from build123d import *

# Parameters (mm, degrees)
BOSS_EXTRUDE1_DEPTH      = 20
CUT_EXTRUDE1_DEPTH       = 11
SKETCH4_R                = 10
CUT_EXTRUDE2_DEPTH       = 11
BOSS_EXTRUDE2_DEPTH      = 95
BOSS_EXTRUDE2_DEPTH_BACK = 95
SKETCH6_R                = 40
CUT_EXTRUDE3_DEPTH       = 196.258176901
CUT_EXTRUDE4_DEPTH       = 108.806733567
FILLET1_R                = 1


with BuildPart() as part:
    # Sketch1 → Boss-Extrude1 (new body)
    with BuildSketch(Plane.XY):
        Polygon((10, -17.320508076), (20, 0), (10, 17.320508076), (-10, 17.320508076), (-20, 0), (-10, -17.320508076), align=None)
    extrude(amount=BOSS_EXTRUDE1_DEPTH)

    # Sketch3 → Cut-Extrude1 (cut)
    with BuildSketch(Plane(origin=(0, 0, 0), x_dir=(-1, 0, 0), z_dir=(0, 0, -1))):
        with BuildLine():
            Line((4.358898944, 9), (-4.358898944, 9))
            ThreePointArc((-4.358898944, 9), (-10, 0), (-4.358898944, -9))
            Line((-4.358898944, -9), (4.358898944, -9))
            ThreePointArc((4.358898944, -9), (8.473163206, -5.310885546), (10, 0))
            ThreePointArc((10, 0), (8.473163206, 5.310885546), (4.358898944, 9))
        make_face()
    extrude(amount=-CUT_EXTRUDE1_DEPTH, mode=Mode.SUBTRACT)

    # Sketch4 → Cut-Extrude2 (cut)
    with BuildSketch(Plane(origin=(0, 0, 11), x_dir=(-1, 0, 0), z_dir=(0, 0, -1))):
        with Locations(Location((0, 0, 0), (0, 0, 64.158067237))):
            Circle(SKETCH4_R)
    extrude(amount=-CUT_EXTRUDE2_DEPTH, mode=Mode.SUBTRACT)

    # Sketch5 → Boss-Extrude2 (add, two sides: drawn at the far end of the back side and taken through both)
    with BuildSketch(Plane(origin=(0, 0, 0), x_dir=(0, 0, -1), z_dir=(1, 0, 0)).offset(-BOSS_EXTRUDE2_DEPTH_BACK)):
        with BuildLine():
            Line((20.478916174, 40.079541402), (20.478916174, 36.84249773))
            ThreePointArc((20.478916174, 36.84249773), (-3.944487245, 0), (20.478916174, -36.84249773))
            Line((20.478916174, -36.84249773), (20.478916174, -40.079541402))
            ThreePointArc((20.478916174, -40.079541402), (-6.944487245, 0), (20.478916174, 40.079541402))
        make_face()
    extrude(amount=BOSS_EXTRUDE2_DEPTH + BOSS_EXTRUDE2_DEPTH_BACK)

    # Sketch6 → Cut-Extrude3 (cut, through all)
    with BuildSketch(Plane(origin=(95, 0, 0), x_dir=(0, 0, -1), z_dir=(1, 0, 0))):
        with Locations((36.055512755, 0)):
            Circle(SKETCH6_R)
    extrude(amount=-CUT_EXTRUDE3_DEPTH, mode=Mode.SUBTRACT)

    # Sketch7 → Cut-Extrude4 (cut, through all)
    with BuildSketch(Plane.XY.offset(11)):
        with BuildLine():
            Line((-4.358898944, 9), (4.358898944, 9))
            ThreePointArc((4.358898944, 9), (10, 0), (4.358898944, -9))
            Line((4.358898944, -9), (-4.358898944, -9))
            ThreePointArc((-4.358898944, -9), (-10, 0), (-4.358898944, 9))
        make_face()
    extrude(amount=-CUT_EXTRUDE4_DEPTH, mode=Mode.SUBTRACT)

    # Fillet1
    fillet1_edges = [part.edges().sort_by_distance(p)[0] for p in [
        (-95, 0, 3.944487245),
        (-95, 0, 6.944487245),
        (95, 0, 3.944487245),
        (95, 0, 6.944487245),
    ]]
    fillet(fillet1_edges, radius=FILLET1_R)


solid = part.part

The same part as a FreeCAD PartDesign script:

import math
import FreeCAD as App
import Part
import Sketcher
Q = App.Units.Quantity


def edges_at(feature, points):
    """Names of the edges that pass closest to the given points."""
    edges = feature.Shape.Edges
    near = lambda p: min(range(len(edges)), key=lambda i: edges[i].distToShape(Part.Vertex(*p))[0])
    return sorted({f"Edge{near(p) + 1}" for p in points})

doc = App.newDocument("Part")
body = doc.addObject("PartDesign::Body", "Body")

# Sketch on XY plane
sketch1 = body.newObject("Sketcher::SketchObject", "Sketch")
sketch1.AttachmentSupport = (doc.getObject("XY_Plane"), [""])
sketch1.MapMode = "FlatFace"
sketch1.addGeometry([
    Part.LineSegment(App.Vector(10, -17, 0), App.Vector(20, 0, 0)),  # 0
    Part.LineSegment(App.Vector(20, 0, 0), App.Vector(10, 17, 0)),  # 1
    Part.LineSegment(App.Vector(10, 17, 0), App.Vector(-10, 17, 0)),  # 2
    Part.LineSegment(App.Vector(-10, 17, 0), App.Vector(-20, 0, 0)),  # 3
    Part.LineSegment(App.Vector(-20, 0, 0), App.Vector(-10, -17, 0)),  # 4
    Part.LineSegment(App.Vector(-10, -17, 0), App.Vector(10, -17, 0)),  # 5
], False)
sketch1.addConstraint([
    Sketcher.Constraint("Coincident", 0, 2, 1, 1),
    Sketcher.Constraint("Coincident", 1, 2, 2, 1),
    Sketcher.Constraint("Coincident", 2, 2, 3, 1),
    Sketcher.Constraint("Coincident", 3, 2, 4, 1),
    Sketcher.Constraint("Coincident", 4, 2, 5, 1),
    Sketcher.Constraint("Coincident", 5, 2, 0, 1),
    Sketcher.Constraint("Horizontal", 2),
    Sketcher.Constraint("Horizontal", 5),
    Sketcher.Constraint("Symmetric", 0, 2, 3, 2, -1, 1),
    Sketcher.Constraint("Symmetric", 1, 2, 4, 2, -1, 1),
    Sketcher.Constraint("PointOnObject", 0, 2, -1),
    Sketcher.Constraint("Parallel", 0, 3),
    Sketcher.Constraint("Vertical", 2, 2, 4, 2),
    Sketcher.Constraint("DistanceX", 2, 2, 2, 1, Q("20 mm")),
    Sketcher.Constraint("Angle", 0, Q("60 deg")),
    Sketcher.Constraint("Distance", 0, Q("20 mm")),
])
pad1 = body.newObject("PartDesign::Pad", "Pad")
pad1.Profile = sketch1
pad1.Length = 20

# Sketch on XY plane
sketch2 = body.newObject("Sketcher::SketchObject", "Sketch001")
sketch2.AttachmentSupport = (doc.getObject("XY_Plane"), [""])
sketch2.MapMode = "FlatFace"
sketch2.addGeometry([
    Part.LineSegment(App.Vector(-4, 9, 0), App.Vector(4, 9, 0)),  # 0
    Part.ArcOfCircle(Part.Circle(App.Vector(0, 0, 0), App.Vector(0, 0, 1), 10), math.radians(-64), math.radians(64)),  # 1
    Part.LineSegment(App.Vector(4, -9, 0), App.Vector(-4, -9, 0)),  # 2
    Part.ArcOfCircle(Part.Circle(App.Vector(0, 0, 0), App.Vector(0, 0, 1), 10), math.radians(180), math.radians(244)),  # 3
    Part.ArcOfCircle(Part.Circle(App.Vector(0, 0, 0), App.Vector(0, 0, 1), 10), math.radians(116), math.radians(180)),  # 4
], False)
sketch2.addConstraint([
    Sketcher.Constraint("Coincident", 0, 2, 1, 2),
    Sketcher.Constraint("Coincident", 1, 1, 2, 1),
    Sketcher.Constraint("Coincident", 2, 2, 3, 2),
    Sketcher.Constraint("Tangent", 3, 1, 4, 2),
    Sketcher.Constraint("Coincident", 4, 1, 0, 1),
    Sketcher.Constraint("Horizontal", 0),
    Sketcher.Constraint("Horizontal", 2),
    Sketcher.Constraint("Coincident", 1, 3, -1, 1),
    Sketcher.Constraint("Coincident", 3, 3, -1, 1),
    Sketcher.Constraint("Equal", 1, 3),
    Sketcher.Constraint("Equal", 3, 4),
    Sketcher.Constraint("PointOnObject", 3, 1, -1),
    Sketcher.Constraint("Vertical", 0, 2, 1, 1),
    Sketcher.Constraint("Radius", 1, Q("10 mm")),
    Sketcher.Constraint("DistanceY", -1, 1, 0, 2, Q("9 mm")),
])
pocket1 = body.newObject("PartDesign::Pocket", "Pocket")
pocket1.Profile = sketch2
pocket1.Length = 11
pocket1.Reversed = True

# Sketch on XY plane
sketch3 = body.newObject("Sketcher::SketchObject", "Sketch002")
sketch3.AttachmentSupport = (doc.getObject("XY_Plane"), [""])
sketch3.MapMode = "FlatFace"
sketch3.AttachmentOffset = App.Placement(App.Vector(0, 0, 11), App.Rotation())
sketch3.addGeometry(Part.Circle(App.Vector(0, 0, 0), App.Vector(0, 0, 1), 10), False)
sketch3.addConstraint([
    Sketcher.Constraint("Coincident", 0, 3, -1, 1),
    Sketcher.Constraint("Diameter", 0, Q("20 mm")),
])
pocket2 = body.newObject("PartDesign::Pocket", "Pocket001")
pocket2.Profile = sketch3
pocket2.Length = 11
pocket2.Reversed = True

# Sketch on YZ plane
sketch4 = body.newObject("Sketcher::SketchObject", "Sketch003")
sketch4.AttachmentSupport = (doc.getObject("YZ_Plane"), [""])
sketch4.MapMode = "FlatFace"
sketch4.addGeometry([
    Part.LineSegment(App.Vector(36.8, -20.5, 0), App.Vector(40.1, -20.5, 0)),
    Part.ArcOfCircle(Part.Circle(App.Vector(0, -36.1, 0), App.Vector(0, 0, 1), 43), math.radians(21), math.radians(159)),
    Part.LineSegment(App.Vector(-40.1, -20.5, 0), App.Vector(-36.8, -20.5, 0)),
    Part.ArcOfCircle(Part.Circle(App.Vector(0, -36.1, 0), App.Vector(0, 0, 1), 40), math.radians(23), math.radians(157)),
], False)
sketch4.addConstraint([
    Sketcher.Constraint("Coincident", 0, 2, 1, 1),
    Sketcher.Constraint("Coincident", 1, 2, 2, 1),
    Sketcher.Constraint("Coincident", 2, 2, 3, 2),
    Sketcher.Constraint("Coincident", 3, 1, 0, 1),
    Sketcher.Constraint("Horizontal", 0),
    Sketcher.Constraint("Horizontal", 2),
    Sketcher.Constraint("Coincident", 3, 3, 1, 3),
    Sketcher.Constraint("Symmetric", 0, 2, 1, 2, -2),
    Sketcher.Constraint("Radius", 1, Q("43 mm")),
    Sketcher.Constraint("Radius", 3, Q("40 mm")),
    Sketcher.Constraint("DistanceX", 0, 1, 0, 2, Q("3.237044 mm")),
    Sketcher.Constraint("DistanceY", 1, 3, -1, 1, Q("36.055513 mm")),
])
pad2 = body.newObject("PartDesign::Pad", "Pad001")
pad2.Profile = sketch4
pad2.Type = "TwoLengths"
pad2.Length = 95
pad2.Length2 = 95

# Sketch on YZ plane
sketch5 = body.newObject("Sketcher::SketchObject", "Sketch004")
sketch5.AttachmentSupport = (doc.getObject("YZ_Plane"), [""])
sketch5.MapMode = "FlatFace"
sketch5.AttachmentOffset = App.Placement(App.Vector(0, 0, 95), App.Rotation())
sketch5.addGeometry(Part.Circle(App.Vector(0, -36, 0), App.Vector(0, 0, 1), 40), False)
sketch5.addConstraint([
    Sketcher.Constraint("PointOnObject", 0, 3, -2),
    Sketcher.Constraint("Diameter", 0, Q("80 mm")),
    Sketcher.Constraint("DistanceY", 0, 3, -1, 1, Q("36.055513 mm")),
])
pocket3 = body.newObject("PartDesign::Pocket", "Pocket002")
pocket3.Profile = sketch5
pocket3.Type = "ThroughAll"

# Sketch on XY plane
sketch6 = body.newObject("Sketcher::SketchObject", "Sketch005")
sketch6.AttachmentSupport = (doc.getObject("XY_Plane"), [""])
sketch6.MapMode = "FlatFace"
sketch6.AttachmentOffset = App.Placement(App.Vector(0, 0, 11), App.Rotation())
sketch6.addGeometry([
    Part.LineSegment(App.Vector(4, 9, 0), App.Vector(-4, 9, 0)),
    Part.ArcOfCircle(Part.Circle(App.Vector(0, 0, 0), App.Vector(0, 0, 1), 10), math.radians(116), math.radians(244)),
    Part.LineSegment(App.Vector(-4, -9, 0), App.Vector(4, -9, 0)),
    Part.ArcOfCircle(Part.Circle(App.Vector(0, 0, 0), App.Vector(0, 0, 1), 10), math.radians(-64), math.radians(64)),
], False)
sketch6.addConstraint([
    Sketcher.Constraint("Coincident", 0, 2, 1, 1),
    Sketcher.Constraint("Coincident", 1, 2, 2, 1),
    Sketcher.Constraint("Coincident", 2, 2, 3, 1),
    Sketcher.Constraint("Coincident", 3, 2, 0, 1),
    Sketcher.Constraint("Horizontal", 0),
    Sketcher.Constraint("Horizontal", 2),
    Sketcher.Constraint("Coincident", 1, 3, -1, 1),
    Sketcher.Constraint("Coincident", 3, 3, -1, 1),
    Sketcher.Constraint("Equal", 1, 3),
    Sketcher.Constraint("Vertical", 0, 2, 1, 2),
    Sketcher.Constraint("Radius", 1, Q("10 mm")),
    Sketcher.Constraint("DistanceY", -1, 1, 0, 2, Q("9 mm")),
])
pocket4 = body.newObject("PartDesign::Pocket", "Pocket003")
pocket4.Profile = sketch6
pocket4.Type = "ThroughAll"
doc.recompute()

fillet = body.newObject("PartDesign::Fillet", "Fillet")
fillet.Base = (pocket4, edges_at(pocket4, [
    (-95, 0, 3.944),
    (-95, 0, 6.944),
    (95, 0, 3.944),
    (95, 0, 6.944),
]))
fillet.Radius = 1

doc.recompute()
